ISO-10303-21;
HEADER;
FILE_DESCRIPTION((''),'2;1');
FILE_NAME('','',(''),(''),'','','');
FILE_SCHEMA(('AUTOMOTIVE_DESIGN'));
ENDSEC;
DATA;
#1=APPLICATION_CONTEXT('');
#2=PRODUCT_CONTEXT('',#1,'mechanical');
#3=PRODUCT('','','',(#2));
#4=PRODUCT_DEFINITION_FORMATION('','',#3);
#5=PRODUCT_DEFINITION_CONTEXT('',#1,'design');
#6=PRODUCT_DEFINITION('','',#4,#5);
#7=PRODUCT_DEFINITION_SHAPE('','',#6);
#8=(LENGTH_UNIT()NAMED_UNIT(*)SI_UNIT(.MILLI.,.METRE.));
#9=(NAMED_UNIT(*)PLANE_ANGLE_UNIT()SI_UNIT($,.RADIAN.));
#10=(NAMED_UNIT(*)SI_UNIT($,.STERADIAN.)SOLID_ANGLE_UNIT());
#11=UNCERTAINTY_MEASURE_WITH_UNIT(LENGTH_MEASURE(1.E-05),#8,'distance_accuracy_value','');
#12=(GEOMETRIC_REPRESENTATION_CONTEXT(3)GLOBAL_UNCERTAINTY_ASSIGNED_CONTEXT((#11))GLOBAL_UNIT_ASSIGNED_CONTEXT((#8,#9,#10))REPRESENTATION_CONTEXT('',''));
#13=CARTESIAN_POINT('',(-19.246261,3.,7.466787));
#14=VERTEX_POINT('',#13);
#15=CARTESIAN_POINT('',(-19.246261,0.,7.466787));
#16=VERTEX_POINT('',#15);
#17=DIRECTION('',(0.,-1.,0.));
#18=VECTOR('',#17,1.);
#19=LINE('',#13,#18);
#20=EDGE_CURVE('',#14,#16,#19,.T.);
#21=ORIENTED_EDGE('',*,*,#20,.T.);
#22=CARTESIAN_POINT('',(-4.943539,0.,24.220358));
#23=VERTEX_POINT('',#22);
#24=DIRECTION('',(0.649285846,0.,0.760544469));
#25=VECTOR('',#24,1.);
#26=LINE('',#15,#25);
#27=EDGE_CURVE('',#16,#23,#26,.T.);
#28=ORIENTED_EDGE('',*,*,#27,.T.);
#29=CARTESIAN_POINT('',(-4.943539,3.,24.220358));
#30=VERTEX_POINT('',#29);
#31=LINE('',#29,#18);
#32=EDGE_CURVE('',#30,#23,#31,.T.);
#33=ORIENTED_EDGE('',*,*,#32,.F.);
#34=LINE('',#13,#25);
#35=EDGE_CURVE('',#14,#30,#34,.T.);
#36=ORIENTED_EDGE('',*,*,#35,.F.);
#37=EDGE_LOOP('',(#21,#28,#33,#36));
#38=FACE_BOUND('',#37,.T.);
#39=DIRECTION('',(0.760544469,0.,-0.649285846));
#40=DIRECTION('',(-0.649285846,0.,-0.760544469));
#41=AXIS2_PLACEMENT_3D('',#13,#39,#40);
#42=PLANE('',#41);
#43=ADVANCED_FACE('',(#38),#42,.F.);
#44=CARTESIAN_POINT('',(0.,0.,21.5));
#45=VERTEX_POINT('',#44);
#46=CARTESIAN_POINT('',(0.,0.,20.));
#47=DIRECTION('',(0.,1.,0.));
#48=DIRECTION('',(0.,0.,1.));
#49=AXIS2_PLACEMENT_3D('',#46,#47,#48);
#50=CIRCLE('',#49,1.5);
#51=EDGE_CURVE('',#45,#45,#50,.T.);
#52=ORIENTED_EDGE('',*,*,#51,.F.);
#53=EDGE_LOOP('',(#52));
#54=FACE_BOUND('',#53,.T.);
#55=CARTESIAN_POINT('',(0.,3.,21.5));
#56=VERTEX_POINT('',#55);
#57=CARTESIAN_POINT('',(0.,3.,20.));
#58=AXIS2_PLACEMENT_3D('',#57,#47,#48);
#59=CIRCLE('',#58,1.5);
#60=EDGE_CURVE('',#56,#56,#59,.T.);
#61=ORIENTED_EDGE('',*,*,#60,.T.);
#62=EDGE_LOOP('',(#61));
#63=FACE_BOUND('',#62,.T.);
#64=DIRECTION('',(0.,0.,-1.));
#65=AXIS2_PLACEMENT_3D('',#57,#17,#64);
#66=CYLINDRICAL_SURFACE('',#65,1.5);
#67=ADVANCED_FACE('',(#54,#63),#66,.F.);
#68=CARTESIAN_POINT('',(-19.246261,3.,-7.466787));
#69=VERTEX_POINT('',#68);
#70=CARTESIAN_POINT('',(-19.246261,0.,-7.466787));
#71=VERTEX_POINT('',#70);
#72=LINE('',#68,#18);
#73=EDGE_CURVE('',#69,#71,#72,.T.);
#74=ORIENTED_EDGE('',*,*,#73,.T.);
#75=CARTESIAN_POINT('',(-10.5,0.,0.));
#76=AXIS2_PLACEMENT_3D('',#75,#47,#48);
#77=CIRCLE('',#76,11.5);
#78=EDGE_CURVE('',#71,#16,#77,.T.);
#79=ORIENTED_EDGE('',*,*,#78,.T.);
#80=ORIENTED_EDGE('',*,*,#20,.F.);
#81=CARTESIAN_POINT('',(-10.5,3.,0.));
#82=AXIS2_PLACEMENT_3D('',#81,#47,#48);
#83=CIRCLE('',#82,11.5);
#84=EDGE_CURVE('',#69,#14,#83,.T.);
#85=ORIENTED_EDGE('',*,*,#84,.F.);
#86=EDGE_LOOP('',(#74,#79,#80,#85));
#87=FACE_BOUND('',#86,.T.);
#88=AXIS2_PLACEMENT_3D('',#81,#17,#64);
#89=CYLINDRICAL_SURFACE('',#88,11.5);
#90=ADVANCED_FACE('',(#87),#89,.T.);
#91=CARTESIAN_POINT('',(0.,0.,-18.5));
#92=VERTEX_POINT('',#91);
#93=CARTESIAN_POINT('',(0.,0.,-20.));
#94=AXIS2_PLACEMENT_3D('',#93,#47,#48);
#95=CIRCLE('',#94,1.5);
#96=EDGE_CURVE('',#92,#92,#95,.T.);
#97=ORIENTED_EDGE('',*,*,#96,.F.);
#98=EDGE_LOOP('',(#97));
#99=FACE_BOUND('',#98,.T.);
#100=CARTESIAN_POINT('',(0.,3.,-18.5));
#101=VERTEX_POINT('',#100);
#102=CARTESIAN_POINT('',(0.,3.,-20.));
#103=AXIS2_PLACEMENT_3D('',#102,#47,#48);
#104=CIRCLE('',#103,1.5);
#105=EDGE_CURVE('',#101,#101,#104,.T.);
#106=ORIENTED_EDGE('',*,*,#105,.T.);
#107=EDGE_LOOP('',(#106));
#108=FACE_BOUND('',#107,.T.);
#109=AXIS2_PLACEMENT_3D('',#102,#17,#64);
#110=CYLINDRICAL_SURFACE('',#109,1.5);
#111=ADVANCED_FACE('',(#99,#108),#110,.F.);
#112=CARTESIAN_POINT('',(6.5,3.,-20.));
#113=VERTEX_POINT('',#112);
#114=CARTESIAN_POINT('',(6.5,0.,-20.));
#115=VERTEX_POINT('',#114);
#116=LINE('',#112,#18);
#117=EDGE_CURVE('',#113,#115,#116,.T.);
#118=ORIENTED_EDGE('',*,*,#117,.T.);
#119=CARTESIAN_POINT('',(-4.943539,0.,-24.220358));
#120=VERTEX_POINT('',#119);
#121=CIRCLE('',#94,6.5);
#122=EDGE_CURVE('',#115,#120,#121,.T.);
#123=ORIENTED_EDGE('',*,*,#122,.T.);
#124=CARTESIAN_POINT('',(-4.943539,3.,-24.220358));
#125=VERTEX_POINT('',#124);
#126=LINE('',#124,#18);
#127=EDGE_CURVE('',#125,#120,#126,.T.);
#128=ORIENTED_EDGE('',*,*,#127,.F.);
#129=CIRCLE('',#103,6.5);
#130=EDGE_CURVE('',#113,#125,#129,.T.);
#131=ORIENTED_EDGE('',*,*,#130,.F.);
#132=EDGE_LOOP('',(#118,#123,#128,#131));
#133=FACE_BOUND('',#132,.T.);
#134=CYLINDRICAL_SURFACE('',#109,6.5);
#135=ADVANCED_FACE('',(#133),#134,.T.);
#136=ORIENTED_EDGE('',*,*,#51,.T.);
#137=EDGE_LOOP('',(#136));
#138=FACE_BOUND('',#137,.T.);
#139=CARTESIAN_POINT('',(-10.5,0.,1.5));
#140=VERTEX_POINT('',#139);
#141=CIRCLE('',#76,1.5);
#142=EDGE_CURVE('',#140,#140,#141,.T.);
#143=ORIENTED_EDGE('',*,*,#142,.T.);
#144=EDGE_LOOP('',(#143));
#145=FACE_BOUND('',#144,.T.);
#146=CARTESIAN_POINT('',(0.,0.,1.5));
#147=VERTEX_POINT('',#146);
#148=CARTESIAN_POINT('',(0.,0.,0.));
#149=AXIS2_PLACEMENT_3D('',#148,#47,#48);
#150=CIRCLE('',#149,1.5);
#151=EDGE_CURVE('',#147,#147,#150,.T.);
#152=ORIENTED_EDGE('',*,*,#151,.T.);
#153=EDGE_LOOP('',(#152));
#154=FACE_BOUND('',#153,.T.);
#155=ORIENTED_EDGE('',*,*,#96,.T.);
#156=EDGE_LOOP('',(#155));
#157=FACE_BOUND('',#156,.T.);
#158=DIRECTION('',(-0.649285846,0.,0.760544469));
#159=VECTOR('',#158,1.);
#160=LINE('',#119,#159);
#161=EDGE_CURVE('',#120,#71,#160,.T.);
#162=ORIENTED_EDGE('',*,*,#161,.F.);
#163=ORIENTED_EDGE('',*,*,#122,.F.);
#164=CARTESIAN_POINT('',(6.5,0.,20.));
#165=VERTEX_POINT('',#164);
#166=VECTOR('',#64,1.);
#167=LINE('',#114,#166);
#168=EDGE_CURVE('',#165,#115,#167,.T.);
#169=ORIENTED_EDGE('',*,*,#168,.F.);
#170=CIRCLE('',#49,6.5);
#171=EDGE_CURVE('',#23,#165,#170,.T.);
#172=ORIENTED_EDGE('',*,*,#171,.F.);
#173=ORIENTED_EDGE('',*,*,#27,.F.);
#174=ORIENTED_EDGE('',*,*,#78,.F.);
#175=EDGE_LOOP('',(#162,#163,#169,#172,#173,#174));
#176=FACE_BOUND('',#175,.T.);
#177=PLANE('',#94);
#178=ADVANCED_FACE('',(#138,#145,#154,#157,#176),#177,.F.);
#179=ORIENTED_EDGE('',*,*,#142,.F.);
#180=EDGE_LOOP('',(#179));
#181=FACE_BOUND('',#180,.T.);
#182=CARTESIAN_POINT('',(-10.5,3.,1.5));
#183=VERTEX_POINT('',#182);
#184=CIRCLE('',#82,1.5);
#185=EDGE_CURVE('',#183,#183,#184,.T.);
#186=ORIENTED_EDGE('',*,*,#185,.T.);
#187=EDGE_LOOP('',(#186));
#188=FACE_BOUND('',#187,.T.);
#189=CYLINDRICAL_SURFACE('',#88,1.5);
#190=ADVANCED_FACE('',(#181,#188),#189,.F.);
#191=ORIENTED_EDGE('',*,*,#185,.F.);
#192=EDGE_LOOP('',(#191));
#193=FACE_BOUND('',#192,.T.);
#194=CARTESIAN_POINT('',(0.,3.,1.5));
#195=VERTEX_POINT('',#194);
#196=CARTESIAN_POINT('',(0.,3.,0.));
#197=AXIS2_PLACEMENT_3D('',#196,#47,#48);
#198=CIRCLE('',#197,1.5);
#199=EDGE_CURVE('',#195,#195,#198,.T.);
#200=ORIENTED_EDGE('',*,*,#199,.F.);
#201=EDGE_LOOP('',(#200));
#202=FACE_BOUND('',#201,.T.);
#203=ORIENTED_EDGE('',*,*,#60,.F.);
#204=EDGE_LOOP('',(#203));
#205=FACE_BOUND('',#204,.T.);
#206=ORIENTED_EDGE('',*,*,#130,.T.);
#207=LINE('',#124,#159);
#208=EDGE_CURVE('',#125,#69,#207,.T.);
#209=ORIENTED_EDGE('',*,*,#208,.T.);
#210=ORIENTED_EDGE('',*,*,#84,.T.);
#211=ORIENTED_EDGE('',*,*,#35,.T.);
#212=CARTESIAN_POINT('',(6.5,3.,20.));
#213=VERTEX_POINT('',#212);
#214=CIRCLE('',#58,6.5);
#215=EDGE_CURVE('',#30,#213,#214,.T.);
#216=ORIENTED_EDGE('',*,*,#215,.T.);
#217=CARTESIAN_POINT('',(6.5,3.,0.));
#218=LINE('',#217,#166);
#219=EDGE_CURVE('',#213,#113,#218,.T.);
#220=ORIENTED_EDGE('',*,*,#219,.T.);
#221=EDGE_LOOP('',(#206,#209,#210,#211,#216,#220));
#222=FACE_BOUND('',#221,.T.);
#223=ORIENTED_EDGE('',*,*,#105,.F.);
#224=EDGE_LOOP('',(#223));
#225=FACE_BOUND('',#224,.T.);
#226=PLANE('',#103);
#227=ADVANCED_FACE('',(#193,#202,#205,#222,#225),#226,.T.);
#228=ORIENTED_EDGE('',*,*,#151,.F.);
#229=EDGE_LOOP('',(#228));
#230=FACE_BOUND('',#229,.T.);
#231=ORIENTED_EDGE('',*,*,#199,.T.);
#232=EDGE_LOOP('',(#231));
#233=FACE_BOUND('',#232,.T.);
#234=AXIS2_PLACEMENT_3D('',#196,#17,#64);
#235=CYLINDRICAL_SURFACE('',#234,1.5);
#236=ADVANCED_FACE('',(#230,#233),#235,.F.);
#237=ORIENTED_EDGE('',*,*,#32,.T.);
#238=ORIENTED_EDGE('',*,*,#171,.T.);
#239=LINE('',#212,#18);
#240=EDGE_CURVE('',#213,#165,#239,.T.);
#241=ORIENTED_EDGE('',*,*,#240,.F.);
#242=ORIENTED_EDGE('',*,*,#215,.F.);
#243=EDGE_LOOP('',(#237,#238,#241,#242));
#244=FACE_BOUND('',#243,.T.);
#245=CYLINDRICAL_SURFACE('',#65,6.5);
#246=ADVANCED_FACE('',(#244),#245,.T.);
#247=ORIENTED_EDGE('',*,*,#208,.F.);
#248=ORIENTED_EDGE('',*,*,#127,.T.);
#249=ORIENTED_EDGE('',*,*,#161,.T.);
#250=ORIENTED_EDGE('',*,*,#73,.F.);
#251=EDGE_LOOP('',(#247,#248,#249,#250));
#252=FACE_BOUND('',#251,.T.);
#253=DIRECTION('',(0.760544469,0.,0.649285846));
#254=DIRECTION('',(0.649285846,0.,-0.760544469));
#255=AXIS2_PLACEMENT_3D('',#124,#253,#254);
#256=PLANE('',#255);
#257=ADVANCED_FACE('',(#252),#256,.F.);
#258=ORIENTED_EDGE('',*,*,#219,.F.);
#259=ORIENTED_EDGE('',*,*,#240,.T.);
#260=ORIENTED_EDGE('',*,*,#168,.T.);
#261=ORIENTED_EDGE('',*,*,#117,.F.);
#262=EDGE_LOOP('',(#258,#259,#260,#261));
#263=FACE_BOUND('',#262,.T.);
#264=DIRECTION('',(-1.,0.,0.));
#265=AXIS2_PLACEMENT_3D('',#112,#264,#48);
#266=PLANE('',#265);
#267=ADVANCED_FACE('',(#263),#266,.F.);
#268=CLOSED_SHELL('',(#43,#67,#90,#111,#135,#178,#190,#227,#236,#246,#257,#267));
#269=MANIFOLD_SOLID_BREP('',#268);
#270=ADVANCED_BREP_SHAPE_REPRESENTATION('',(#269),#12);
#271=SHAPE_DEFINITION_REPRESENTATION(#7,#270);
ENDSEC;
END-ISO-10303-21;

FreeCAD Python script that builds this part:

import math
import FreeCAD as App
import Part
import Sketcher

doc = App.newDocument("Part")
body = doc.addObject("PartDesign::Body", "Body")

# Sketch on XZ plane
sketch1 = body.newObject("Sketcher::SketchObject", "Sketch")
sketch1.AttachmentSupport = (doc.getObject("XZ_Plane"), [""])
sketch1.MapMode = "FlatFace"
sketch1.addGeometry([
    Part.LineSegment(App.Vector(6.5, 20, 0), App.Vector(6.5, -20, 0)),  # 0
    Part.ArcOfCircle(Part.Circle(App.Vector(0, -20, 0), App.Vector(0, 0, 1), 6.5), math.radians(-140), math.radians(0)),  # 1
    Part.LineSegment(App.Vector(-4.9, -24.2, 0), App.Vector(-19.2, -7.5, 0)),  # 2
    Part.ArcOfCircle(Part.Circle(App.Vector(-10.5, 0, 0), App.Vector(0, 0, 1), 11.5), math.radians(140), math.radians(220)),  # 3
    Part.LineSegment(App.Vector(-19.2, 7.5, 0), App.Vector(-4.9, 24.2, 0)),  # 4
    Part.ArcOfCircle(Part.Circle(App.Vector(0, 20, 0), App.Vector(0, 0, 1), 6.5), math.radians(0), math.radians(140)),  # 5
    Part.Circle(App.Vector(0, 20, 0), App.Vector(0, 0, 1), 1.5),  # 6
    Part.Circle(App.Vector(0, 0, 0), App.Vector(0, 0, 1), 1.5),  # 7
    Part.Circle(App.Vector(0, -20, 0), App.Vector(0, 0, 1), 1.5),  # 8
    Part.Circle(App.Vector(-10.5, 0, 0), App.Vector(0, 0, 1), 1.5),  # 9
], False)
sketch1.addConstraint([
    Sketcher.Constraint("Tangent", 0, 2, 1, 2),
    Sketcher.Constraint("Tangent", 1, 1, 2, 1),
    Sketcher.Constraint("Tangent", 2, 2, 3, 2),
    Sketcher.Constraint("Tangent", 3, 1, 4, 1),
    Sketcher.Constraint("Tangent", 4, 2, 5, 2),
    Sketcher.Constraint("Tangent", 5, 1, 0, 1),
    Sketcher.Constraint("Vertical", 0),
    Sketcher.Constraint("Coincident", 7, 3, -1, 1),
    Sketcher.Constraint("Coincident", 6, 3, 5, 3),
    Sketcher.Constraint("Coincident", 8, 3, 1, 3),
    Sketcher.Constraint("Coincident", 9, 3, 3, 3),
    Sketcher.Constraint("Equal", 1, 5),
    Sketcher.Constraint("Equal", 6, 7),
    Sketcher.Constraint("Equal", 7, 8),
    Sketcher.Constraint("Equal", 8, 9),
    Sketcher.Constraint("Symmetric", 1, 3, 5, 3, -1, 1),
    Sketcher.Constraint("PointOnObject", 3, 3, -1),
    Sketcher.Constraint("Diameter", 6, 3.0),
    Sketcher.Constraint("Radius", 1, 6.5),
    Sketcher.Constraint("Radius", 3, 11.5),
    Sketcher.Constraint("DistanceY", 0, 2, 0, 1, 40.0),
    Sketcher.Constraint("DistanceX", 9, 3, 0, 2, 17.0),
])
pad1 = body.newObject("PartDesign::Pad", "Pad")
pad1.Profile = sketch1
pad1.Length = 3
pad1.Reversed = True

doc.recompute()
